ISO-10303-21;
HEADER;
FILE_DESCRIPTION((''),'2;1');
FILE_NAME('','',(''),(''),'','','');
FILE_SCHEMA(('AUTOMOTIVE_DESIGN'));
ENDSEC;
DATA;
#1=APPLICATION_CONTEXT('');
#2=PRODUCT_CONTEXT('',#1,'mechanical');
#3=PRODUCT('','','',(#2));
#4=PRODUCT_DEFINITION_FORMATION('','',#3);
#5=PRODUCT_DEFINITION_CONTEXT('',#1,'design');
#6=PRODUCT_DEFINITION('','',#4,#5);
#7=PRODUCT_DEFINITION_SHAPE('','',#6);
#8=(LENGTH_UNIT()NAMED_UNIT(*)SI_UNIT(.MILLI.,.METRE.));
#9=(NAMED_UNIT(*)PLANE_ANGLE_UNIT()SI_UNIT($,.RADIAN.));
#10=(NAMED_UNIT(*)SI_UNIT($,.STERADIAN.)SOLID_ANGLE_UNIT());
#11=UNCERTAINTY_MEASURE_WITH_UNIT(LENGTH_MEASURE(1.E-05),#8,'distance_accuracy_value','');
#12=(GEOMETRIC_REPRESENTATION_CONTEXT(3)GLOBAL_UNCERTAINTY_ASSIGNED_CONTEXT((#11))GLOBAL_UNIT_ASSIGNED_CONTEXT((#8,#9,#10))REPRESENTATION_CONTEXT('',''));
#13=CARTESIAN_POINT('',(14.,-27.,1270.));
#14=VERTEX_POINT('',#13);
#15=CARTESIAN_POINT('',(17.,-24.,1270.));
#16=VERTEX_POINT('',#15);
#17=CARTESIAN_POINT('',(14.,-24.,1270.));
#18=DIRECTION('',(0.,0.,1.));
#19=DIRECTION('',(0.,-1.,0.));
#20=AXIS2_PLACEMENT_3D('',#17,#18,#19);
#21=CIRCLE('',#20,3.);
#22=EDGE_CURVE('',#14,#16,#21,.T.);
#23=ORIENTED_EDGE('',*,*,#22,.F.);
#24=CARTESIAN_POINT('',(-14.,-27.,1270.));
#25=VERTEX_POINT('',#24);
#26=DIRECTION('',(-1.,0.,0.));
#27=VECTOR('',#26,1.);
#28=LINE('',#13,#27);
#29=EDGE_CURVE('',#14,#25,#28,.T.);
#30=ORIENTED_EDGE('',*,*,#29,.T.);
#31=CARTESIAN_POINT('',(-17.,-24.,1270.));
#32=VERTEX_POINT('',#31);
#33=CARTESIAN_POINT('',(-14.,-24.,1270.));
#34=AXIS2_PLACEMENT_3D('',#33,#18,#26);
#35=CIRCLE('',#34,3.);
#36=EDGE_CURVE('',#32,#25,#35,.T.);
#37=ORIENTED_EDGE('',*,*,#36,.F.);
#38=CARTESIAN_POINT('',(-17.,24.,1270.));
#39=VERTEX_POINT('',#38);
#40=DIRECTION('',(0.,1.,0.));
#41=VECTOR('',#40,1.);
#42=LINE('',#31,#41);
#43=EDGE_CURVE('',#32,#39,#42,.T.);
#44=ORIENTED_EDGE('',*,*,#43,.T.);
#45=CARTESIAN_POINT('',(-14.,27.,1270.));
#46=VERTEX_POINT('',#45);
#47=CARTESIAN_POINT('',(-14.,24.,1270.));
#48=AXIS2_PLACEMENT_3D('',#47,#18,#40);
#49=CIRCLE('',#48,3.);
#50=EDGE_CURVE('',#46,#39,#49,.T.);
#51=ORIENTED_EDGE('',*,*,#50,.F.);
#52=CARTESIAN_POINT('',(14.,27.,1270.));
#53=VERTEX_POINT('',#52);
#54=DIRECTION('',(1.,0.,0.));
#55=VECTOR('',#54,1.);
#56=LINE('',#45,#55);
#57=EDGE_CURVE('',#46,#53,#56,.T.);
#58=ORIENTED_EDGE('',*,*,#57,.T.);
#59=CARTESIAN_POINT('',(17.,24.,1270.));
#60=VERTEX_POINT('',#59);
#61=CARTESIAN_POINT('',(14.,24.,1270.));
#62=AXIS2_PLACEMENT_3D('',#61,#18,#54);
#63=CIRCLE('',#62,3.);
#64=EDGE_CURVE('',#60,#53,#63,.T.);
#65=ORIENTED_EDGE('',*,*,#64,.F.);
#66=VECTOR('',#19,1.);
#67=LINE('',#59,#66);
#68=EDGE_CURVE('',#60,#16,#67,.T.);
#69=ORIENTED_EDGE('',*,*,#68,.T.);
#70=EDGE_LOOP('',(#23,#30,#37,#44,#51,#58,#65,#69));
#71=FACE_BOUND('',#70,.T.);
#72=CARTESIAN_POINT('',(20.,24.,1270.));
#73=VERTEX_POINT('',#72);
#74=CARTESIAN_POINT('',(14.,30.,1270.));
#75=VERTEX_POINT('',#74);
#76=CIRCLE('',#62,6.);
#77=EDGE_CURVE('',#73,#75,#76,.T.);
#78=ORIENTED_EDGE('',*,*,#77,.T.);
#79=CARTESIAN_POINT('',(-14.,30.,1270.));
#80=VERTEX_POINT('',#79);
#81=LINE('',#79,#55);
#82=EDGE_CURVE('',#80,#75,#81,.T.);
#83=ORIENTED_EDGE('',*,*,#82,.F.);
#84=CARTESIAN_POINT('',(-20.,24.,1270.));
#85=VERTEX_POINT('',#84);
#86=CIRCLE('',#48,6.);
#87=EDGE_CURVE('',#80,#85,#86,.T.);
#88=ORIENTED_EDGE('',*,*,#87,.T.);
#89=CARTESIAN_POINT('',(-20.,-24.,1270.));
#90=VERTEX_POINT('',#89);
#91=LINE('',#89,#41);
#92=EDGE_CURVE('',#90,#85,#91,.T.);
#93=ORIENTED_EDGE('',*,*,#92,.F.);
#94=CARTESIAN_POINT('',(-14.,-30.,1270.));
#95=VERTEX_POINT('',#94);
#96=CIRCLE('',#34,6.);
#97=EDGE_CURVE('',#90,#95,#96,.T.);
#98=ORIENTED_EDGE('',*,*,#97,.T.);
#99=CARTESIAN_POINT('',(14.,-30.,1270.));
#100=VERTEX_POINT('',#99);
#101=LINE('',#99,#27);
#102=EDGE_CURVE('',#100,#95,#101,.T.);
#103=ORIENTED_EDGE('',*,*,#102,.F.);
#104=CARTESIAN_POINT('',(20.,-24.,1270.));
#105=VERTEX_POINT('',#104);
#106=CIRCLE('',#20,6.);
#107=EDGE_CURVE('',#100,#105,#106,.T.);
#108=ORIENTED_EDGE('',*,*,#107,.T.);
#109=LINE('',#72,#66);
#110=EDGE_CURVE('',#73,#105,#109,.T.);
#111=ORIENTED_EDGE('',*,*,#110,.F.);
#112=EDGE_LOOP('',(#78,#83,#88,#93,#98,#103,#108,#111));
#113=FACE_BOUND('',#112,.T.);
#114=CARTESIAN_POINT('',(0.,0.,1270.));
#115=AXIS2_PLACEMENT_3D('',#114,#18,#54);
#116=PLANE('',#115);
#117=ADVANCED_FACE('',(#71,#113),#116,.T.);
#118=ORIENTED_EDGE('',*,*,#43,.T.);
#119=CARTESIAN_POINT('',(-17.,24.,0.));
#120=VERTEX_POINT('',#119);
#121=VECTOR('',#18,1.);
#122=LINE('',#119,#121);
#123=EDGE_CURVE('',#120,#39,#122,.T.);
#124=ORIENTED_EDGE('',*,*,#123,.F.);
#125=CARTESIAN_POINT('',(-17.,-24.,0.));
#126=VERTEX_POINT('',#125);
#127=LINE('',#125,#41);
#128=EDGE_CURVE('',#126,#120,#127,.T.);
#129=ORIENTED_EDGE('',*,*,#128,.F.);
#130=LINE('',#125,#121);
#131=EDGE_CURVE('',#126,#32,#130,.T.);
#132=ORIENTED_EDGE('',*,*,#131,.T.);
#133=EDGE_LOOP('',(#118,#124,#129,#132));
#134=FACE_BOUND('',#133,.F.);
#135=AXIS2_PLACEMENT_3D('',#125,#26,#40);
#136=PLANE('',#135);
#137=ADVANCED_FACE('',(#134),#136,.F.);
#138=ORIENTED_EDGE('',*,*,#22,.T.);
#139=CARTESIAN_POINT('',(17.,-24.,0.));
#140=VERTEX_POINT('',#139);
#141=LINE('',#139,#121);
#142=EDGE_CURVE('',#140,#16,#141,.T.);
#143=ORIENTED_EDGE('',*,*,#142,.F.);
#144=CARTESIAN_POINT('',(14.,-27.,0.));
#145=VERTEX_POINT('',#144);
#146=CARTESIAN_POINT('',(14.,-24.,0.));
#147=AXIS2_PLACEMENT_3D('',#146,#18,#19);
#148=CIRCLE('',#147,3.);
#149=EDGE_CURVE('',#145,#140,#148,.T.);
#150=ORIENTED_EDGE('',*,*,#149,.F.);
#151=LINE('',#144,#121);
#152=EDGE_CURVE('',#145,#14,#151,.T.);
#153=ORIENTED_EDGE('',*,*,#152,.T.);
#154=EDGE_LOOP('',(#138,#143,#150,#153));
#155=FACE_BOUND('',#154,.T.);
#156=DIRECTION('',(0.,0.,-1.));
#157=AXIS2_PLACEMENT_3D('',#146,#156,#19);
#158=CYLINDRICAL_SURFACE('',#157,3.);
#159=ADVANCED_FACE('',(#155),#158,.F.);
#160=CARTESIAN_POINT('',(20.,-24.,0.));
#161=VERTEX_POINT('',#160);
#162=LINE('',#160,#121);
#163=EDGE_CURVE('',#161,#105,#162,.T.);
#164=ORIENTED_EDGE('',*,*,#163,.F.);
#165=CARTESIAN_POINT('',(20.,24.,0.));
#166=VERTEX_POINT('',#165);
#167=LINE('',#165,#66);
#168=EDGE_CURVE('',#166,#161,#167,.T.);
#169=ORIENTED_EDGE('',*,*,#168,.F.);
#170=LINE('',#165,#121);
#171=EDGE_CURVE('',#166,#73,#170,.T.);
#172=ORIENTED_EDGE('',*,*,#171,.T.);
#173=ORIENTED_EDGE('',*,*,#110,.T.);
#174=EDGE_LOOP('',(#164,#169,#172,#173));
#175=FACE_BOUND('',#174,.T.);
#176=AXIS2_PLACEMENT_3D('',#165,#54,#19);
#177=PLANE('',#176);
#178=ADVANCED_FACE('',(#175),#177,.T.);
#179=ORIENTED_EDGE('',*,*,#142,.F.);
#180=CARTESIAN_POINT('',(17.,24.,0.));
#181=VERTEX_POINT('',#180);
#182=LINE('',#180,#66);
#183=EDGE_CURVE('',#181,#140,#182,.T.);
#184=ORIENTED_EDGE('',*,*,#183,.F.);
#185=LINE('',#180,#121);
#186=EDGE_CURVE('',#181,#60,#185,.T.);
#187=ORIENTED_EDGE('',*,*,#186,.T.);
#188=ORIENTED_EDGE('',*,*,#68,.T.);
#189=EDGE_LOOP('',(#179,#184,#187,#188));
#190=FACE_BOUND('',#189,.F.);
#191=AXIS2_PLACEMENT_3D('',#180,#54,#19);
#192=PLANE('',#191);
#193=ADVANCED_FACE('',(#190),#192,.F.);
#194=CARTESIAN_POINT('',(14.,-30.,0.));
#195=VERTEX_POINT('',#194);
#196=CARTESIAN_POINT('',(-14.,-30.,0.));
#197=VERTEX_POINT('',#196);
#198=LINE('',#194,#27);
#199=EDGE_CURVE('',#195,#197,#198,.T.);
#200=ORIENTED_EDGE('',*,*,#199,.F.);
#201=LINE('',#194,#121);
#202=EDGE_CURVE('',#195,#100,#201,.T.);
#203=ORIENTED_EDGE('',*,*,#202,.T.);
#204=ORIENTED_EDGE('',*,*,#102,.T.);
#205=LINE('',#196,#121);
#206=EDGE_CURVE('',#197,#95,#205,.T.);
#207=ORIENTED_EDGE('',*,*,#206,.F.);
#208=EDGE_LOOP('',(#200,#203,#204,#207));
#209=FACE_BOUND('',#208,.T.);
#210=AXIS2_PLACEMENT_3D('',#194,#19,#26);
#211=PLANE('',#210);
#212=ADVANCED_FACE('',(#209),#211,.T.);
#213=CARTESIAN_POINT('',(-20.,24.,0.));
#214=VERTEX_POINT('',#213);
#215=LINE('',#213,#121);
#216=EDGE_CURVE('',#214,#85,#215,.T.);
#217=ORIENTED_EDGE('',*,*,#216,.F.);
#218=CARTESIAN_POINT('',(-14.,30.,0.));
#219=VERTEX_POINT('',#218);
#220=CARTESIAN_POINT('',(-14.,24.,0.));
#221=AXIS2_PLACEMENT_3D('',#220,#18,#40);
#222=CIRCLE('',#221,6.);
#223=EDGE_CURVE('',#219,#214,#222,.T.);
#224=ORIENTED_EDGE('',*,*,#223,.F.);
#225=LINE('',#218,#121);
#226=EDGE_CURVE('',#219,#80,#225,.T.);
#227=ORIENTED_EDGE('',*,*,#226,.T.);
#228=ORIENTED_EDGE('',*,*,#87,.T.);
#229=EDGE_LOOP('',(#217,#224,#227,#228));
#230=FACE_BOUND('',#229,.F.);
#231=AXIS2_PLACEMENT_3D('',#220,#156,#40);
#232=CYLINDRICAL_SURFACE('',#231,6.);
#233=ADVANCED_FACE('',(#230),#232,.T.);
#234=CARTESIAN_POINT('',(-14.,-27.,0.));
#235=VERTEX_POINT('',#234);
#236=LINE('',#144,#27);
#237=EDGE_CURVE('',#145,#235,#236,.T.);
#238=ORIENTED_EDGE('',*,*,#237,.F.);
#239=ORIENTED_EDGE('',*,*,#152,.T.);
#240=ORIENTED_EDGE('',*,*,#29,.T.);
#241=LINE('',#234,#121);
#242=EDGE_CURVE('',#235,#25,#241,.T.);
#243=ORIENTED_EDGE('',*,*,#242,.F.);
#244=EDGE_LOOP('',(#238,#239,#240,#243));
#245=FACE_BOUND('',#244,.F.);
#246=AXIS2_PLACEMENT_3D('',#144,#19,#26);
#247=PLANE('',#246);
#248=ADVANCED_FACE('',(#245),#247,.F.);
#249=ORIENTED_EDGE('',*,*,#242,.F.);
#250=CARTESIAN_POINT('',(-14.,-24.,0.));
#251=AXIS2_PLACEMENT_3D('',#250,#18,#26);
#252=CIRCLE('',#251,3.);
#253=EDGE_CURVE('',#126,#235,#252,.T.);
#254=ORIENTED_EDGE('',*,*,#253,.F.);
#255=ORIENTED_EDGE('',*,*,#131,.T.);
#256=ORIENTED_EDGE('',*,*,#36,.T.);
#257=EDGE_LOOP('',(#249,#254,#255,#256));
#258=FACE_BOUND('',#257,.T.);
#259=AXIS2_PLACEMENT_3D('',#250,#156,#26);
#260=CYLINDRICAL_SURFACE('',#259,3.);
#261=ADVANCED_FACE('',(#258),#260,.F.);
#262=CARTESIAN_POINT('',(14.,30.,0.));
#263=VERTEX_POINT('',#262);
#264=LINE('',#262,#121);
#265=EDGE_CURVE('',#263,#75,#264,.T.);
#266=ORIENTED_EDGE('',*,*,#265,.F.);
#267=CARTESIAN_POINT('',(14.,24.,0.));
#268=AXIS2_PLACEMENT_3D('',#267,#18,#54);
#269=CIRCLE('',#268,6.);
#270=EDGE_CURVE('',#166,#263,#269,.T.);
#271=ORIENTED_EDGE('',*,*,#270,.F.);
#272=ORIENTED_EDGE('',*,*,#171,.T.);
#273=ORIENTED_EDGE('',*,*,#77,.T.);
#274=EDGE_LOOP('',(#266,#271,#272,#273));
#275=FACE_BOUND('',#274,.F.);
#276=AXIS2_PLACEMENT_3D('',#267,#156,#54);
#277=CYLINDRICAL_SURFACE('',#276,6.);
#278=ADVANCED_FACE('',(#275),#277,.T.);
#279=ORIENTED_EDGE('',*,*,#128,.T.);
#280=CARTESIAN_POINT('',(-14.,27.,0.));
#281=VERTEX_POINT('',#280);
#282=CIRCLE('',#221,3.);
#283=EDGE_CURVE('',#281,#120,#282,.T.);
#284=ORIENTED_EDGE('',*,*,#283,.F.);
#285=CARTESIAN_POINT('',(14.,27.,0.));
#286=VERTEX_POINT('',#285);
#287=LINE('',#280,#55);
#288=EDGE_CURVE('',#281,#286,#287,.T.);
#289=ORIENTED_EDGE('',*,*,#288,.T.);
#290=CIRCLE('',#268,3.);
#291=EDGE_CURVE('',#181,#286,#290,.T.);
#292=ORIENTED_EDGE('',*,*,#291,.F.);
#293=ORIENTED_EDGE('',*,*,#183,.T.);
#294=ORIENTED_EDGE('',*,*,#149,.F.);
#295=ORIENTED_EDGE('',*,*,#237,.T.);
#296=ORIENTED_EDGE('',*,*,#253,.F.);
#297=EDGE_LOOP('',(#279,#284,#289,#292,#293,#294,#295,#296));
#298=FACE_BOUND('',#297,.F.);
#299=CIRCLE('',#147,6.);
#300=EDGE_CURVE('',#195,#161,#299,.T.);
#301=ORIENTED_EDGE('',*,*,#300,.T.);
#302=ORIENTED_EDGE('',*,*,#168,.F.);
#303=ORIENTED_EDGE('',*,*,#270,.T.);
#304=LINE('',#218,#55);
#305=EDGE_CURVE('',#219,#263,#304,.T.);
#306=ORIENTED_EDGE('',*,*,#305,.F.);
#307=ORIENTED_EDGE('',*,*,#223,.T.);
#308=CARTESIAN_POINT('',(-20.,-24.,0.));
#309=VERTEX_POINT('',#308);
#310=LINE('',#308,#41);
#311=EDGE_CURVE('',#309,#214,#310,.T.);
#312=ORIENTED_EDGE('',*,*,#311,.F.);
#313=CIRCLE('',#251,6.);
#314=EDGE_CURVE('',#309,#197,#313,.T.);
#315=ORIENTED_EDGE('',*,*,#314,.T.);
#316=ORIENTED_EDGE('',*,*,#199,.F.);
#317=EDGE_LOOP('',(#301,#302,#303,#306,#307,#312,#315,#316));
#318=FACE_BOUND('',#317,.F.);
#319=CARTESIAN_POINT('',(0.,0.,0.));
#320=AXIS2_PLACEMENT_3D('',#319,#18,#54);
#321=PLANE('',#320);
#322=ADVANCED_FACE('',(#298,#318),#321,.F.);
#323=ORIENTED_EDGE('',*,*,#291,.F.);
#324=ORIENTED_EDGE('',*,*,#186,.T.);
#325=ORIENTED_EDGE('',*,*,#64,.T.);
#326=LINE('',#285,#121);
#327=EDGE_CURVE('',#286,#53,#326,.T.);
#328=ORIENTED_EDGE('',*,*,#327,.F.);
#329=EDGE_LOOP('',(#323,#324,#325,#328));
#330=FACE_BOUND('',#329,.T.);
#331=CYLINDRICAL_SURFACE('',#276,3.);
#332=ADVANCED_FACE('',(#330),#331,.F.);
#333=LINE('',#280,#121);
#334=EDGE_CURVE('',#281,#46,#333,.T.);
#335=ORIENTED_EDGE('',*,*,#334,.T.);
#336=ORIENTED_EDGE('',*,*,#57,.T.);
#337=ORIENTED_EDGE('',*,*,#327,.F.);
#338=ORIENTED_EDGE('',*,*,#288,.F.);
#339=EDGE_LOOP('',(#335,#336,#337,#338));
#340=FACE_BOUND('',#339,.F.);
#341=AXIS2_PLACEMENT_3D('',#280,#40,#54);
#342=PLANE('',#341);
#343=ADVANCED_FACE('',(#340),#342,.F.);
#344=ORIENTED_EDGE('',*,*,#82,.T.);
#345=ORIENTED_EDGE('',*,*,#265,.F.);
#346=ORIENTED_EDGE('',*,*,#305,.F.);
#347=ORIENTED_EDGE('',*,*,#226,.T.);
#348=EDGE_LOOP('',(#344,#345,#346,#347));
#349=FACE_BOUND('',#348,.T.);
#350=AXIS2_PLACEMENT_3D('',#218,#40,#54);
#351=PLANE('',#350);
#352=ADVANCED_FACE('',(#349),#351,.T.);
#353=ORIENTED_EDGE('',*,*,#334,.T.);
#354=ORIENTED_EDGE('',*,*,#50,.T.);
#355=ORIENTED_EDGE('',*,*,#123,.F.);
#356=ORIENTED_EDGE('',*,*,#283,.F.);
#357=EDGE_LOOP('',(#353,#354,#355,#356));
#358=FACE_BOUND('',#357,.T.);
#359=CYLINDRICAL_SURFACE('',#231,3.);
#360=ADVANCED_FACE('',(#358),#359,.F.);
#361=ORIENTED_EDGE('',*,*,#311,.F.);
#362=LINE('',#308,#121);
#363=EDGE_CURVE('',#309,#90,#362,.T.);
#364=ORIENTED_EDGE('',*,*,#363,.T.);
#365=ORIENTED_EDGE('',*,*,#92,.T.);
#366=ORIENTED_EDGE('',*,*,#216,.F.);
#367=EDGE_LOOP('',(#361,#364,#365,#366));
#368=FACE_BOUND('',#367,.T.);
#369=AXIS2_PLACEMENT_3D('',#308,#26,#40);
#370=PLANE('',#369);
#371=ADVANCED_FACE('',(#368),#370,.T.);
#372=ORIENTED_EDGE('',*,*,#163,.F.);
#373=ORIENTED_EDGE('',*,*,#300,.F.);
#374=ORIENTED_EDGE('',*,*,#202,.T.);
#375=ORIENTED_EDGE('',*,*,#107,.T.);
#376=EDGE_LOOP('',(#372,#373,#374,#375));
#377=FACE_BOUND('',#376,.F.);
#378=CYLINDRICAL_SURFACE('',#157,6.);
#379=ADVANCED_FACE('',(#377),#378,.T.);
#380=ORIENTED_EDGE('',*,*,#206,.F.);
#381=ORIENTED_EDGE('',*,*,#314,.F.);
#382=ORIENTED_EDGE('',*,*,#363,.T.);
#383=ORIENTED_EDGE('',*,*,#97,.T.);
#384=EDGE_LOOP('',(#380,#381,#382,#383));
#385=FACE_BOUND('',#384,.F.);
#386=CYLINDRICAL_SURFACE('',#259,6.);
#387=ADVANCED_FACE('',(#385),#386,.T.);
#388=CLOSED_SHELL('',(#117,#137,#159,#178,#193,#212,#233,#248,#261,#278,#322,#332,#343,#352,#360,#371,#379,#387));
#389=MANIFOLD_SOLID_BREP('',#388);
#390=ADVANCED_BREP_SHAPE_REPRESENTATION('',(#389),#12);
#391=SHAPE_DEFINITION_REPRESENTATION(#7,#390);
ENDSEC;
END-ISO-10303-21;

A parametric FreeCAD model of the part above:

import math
import FreeCAD as App
import Part
import Sketcher

V = App.Vector
Q = App.Units.Quantity

doc = App.newDocument("Part")
body = doc.addObject("PartDesign::Body", "Body")

sketch1 = body.newObject("Sketcher::SketchObject", "Sketch")
sketch1.AttachmentSupport = (doc.getObject("XY_Plane"), [""])
sketch1.MapMode = "FlatFace"
sketch1.addGeometry([
    Part.LineSegment(V(-20, 24, 0), V(-20, -24, 0)),
    Part.ArcOfCircle(Part.Circle(V(-14, -24, 0), V(0, 0, 1), 6), math.radians(180), math.radians(270)),
    Part.LineSegment(V(-14, -30, 0), V(14, -30, 0)),
    Part.ArcOfCircle(Part.Circle(V(14, -24, 0), V(0, 0, 1), 6), math.radians(-90), math.radians(0)),
    Part.LineSegment(V(20, -24, 0), V(20, 24, 0)),
    Part.ArcOfCircle(Part.Circle(V(14, 24, 0), V(0, 0, 1), 6), math.radians(0), math.radians(90)),
    Part.LineSegment(V(14, 30, 0), V(-14, 30, 0)),
    Part.ArcOfCircle(Part.Circle(V(-14, 24, 0), V(0, 0, 1), 6), math.radians(90), math.radians(180)),
    Part.ArcOfCircle(Part.Circle(V(-14, 24, 0), V(0, 0, 1), 3), math.radians(90), math.radians(180)),
    Part.LineSegment(V(-14, 27, 0), V(14, 27, 0)),
    Part.ArcOfCircle(Part.Circle(V(14, 24, 0), V(0, 0, 1), 3), math.radians(0), math.radians(90)),
    Part.LineSegment(V(17, 24, 0), V(17, -24, 0)),
    Part.ArcOfCircle(Part.Circle(V(14, -24, 0), V(0, 0, 1), 3), math.radians(-90), math.radians(0)),
    Part.LineSegment(V(14, -27, 0), V(-14, -27, 0)),
    Part.ArcOfCircle(Part.Circle(V(-14, -24, 0), V(0, 0, 1), 3), math.radians(180), math.radians(270)),
    Part.LineSegment(V(-17, -24, 0), V(-17, 24, 0)),
], False)
sketch1.addConstraint([
    Sketcher.Constraint("Tangent", 0, 2, 1, 1),
    Sketcher.Constraint("Tangent", 1, 2, 2, 1),
    Sketcher.Constraint("Tangent", 2, 2, 3, 1),
    Sketcher.Constraint("Tangent", 3, 2, 4, 1),
    Sketcher.Constraint("Tangent", 4, 2, 5, 1),
    Sketcher.Constraint("Tangent", 5, 2, 6, 1),
    Sketcher.Constraint("Tangent", 6, 2, 7, 1),
    Sketcher.Constraint("Tangent", 7, 2, 0, 1),
    Sketcher.Constraint("Tangent", 8, 1, 9, 1),
    Sketcher.Constraint("Tangent", 9, 2, 10, 2),
    Sketcher.Constraint("Tangent", 10, 1, 11, 1),
    Sketcher.Constraint("Tangent", 11, 2, 12, 2),
    Sketcher.Constraint("Tangent", 12, 1, 13, 1),
    Sketcher.Constraint("Tangent", 13, 2, 14, 2),
    Sketcher.Constraint("Tangent", 14, 1, 15, 1),
    Sketcher.Constraint("Tangent", 15, 2, 8, 2),
    Sketcher.Constraint("Vertical", 0),
    Sketcher.Constraint("Horizontal", 2),
    Sketcher.Constraint("Vertical", 4),
    Sketcher.Constraint("Horizontal", 6),
    Sketcher.Constraint("Horizontal", 9),
    Sketcher.Constraint("Vertical", 11),
    Sketcher.Constraint("Horizontal", 13),
    Sketcher.Constraint("Vertical", 15),
    Sketcher.Constraint("Coincident", 8, 3, 7, 3),
    Sketcher.Constraint("Coincident", 10, 3, 5, 3),
    Sketcher.Constraint("Coincident", 12, 3, 3, 3),
    Sketcher.Constraint("Equal", 1, 3),
    Sketcher.Constraint("Equal", 3, 5),
    Sketcher.Constraint("Equal", 5, 7),
    Sketcher.Constraint("Equal", 12, 14),
    Sketcher.Constraint("Symmetric", 1, 3, 5, 3, -1, 1),
    Sketcher.Constraint("Radius", 1, Q("6 mm")),
    Sketcher.Constraint("Radius", 8, Q("3 mm")),
    Sketcher.Constraint("DistanceX", 0, 2, -1, 1, Q("20 mm")),
    Sketcher.Constraint("DistanceY", 1, 2, -1, 1, Q("30 mm")),
])
pad1 = body.newObject("PartDesign::Pad", "Pad")
pad1.Profile = sketch1
pad1.Length = 1270

doc.recompute()
